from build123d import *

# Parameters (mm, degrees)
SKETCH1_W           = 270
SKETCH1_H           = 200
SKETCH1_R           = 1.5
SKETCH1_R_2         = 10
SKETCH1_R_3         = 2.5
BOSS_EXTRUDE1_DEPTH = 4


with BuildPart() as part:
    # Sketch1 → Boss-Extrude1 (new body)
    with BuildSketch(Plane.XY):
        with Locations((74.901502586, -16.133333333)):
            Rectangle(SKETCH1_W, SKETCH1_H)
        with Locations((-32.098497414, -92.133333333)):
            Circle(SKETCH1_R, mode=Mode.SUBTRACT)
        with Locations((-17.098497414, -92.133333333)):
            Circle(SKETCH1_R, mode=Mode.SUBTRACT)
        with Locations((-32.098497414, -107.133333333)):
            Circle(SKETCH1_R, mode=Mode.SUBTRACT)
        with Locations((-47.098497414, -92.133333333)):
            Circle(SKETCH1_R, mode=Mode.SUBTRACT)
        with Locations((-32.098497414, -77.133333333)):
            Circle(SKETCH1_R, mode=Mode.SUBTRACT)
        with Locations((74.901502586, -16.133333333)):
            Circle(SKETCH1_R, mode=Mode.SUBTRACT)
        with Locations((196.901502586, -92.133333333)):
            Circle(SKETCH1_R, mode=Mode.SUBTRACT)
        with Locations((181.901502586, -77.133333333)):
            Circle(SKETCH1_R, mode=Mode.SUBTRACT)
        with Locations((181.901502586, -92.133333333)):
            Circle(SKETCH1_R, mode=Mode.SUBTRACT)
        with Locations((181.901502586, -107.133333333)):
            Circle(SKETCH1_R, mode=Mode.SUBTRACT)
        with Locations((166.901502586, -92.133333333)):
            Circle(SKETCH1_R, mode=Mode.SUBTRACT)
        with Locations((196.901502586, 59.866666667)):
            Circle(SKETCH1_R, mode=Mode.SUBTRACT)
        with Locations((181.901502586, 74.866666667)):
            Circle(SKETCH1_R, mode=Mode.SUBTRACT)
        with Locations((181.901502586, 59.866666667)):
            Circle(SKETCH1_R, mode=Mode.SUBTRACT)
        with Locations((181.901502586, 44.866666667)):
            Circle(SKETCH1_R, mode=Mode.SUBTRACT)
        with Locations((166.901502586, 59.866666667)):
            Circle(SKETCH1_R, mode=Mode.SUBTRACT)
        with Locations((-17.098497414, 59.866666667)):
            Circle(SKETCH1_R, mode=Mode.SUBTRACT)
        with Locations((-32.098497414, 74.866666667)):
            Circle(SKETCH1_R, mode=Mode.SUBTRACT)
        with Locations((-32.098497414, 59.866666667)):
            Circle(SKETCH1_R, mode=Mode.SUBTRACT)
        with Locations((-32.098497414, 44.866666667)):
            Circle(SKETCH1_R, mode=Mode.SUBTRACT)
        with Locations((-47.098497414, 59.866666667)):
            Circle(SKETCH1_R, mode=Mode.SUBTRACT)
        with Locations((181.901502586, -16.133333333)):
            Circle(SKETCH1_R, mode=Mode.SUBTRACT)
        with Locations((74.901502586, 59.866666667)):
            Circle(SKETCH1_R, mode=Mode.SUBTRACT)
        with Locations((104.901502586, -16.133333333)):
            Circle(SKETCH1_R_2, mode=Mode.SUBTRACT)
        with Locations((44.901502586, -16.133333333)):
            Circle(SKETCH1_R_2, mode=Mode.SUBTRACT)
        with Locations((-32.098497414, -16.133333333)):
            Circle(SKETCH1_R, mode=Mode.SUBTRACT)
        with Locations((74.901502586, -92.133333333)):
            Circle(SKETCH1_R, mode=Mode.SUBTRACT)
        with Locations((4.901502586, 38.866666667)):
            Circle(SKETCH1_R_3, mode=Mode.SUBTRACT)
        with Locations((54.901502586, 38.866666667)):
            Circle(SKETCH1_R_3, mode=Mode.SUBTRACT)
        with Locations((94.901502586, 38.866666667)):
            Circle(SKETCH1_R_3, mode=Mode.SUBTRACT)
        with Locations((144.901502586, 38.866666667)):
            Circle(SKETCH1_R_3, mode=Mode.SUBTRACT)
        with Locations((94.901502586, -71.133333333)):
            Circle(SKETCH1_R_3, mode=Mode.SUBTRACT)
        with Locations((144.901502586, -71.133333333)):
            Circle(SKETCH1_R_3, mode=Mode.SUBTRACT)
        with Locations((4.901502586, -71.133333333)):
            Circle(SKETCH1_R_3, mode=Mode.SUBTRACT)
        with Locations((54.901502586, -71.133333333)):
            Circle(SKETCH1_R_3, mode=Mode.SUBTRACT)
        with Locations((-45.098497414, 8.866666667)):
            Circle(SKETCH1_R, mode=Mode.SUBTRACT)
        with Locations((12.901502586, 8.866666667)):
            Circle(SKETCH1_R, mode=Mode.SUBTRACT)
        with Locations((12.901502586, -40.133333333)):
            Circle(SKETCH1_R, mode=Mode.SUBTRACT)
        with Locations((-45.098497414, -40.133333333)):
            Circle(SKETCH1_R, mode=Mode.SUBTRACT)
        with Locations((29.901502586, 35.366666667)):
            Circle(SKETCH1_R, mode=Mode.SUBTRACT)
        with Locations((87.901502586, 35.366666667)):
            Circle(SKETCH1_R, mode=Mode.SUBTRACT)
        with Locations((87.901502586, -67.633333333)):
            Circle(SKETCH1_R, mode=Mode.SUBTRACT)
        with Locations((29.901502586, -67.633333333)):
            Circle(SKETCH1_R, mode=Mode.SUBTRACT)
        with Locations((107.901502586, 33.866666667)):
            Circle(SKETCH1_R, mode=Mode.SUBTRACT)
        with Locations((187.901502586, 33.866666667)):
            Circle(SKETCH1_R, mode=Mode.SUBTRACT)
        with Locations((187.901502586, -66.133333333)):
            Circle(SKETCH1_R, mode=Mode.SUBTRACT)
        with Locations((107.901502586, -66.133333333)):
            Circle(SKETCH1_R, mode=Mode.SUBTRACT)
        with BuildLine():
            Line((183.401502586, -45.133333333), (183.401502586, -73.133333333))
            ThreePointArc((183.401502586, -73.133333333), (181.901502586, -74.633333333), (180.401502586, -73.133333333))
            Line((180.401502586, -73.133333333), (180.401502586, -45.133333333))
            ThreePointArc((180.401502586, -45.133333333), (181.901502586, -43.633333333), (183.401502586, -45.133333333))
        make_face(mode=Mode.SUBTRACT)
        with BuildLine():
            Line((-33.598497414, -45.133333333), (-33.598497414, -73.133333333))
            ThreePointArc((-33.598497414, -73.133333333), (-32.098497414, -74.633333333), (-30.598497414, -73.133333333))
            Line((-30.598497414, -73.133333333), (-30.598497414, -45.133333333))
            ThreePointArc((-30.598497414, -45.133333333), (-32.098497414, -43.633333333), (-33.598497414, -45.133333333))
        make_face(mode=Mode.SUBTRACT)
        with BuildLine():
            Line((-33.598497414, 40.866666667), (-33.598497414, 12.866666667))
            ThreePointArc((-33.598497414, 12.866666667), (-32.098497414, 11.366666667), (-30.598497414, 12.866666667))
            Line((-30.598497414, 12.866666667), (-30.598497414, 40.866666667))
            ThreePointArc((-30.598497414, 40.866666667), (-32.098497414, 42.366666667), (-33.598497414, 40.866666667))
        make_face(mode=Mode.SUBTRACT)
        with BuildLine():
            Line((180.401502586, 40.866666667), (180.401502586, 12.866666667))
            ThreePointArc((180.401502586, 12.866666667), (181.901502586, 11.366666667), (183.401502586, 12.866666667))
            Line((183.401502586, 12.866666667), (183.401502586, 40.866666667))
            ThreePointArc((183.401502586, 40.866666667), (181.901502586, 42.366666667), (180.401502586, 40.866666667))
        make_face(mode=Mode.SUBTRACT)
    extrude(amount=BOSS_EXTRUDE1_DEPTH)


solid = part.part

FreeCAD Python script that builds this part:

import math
import FreeCAD as App
import Part
import Sketcher
Q = App.Units.Quantity

doc = App.newDocument("Part")
params = doc.addObject("Spreadsheet::Sheet", "Params")
for row, (alias, value) in enumerate([
    ("sketch1_diameter", "3 mm"),
    ("sketch1_diameter2", "5 mm"),
    ("sketch1_diameter3", "20 mm"),
    ("sketch1_width", "270 mm"),
    ("sketch1_height", "200 mm"),
    ("pad1_length", "4 mm"),
], start=1):
    params.set(f"A{row}", alias)
    params.set(f"B{row}", "=" + value)
    params.setAlias(f"B{row}", alias)

body = doc.addObject("PartDesign::Body", "Body")

sketch1 = body.newObject("Sketcher::SketchObject", "Sketch")
sketch1.AttachmentSupport = (doc.getObject("XY_Plane"), [""])
sketch1.MapMode = "FlatFace"
sketch1.addGeometry([
    Part.LineSegment(App.Vector(-60.1, 83.9, 0), App.Vector(-60.1, -116.1, 0)),
    Part.LineSegment(App.Vector(-60.1, -116.1, 0), App.Vector(209.9, -116.1, 0)),
    Part.LineSegment(App.Vector(209.9, -116.1, 0), App.Vector(209.9, 83.9, 0)),
    Part.LineSegment(App.Vector(209.9, 83.9, 0), App.Vector(-60.1, 83.9, 0)),
    Part.Circle(App.Vector(-32.1, -107.1, 0), App.Vector(0, 0, 1), 1.5),
    Part.Circle(App.Vector(-47.1, -92.1, 0), App.Vector(0, 0, 1), 1.5),
    Part.Circle(App.Vector(-32.1, -92.1, 0), App.Vector(0, 0, 1), 1.5),
    Part.Circle(App.Vector(-17.1, -92.1, 0), App.Vector(0, 0, 1), 1.5),
    Part.Circle(App.Vector(-32.1, -77.1, 0), App.Vector(0, 0, 1), 1.5),
    Part.Circle(App.Vector(4.9, -71.1, 0), App.Vector(0, 0, 1), 2.5),
    Part.Circle(App.Vector(29.9, -67.6, 0), App.Vector(0, 0, 1), 1.5),
    Part.Circle(App.Vector(54.9, -71.1, 0), App.Vector(0, 0, 1), 2.5),
    Part.LineSegment(App.Vector(-33.6, -73.1, 0), App.Vector(-33.6, -45.1, 0)),
    Part.ArcOfCircle(Part.Circle(App.Vector(-32.1, -45.1, 0), App.Vector(0, 0, 1), 1.5), math.radians(0), math.radians(180)),
    Part.LineSegment(App.Vector(-30.6, -45.1, 0), App.Vector(-30.6, -73.1, 0)),
    Part.ArcOfCircle(Part.Circle(App.Vector(-32.1, -73.1, 0), App.Vector(0, 0, 1), 1.5), math.radians(180), math.radians(360)),
    Part.Circle(App.Vector(-45.1, -40.1, 0), App.Vector(0, 0, 1), 1.5),
    Part.Circle(App.Vector(12.9, -40.1, 0), App.Vector(0, 0, 1), 1.5),
    Part.Circle(App.Vector(74.9, -92.1, 0), App.Vector(0, 0, 1), 1.5),
    Part.Circle(App.Vector(87.9, -67.6, 0), App.Vector(0, 0, 1), 1.5),
    Part.Circle(App.Vector(94.9, -71.1, 0), App.Vector(0, 0, 1), 2.5),
    Part.Circle(App.Vector(107.9, -66.1, 0), App.Vector(0, 0, 1), 1.5),
    Part.Circle(App.Vector(166.9, -92.1, 0), App.Vector(0, 0, 1), 1.5),
    Part.Circle(App.Vector(181.9, -107.1, 0), App.Vector(0, 0, 1), 1.5),
    Part.Circle(App.Vector(181.9, -92.1, 0), App.Vector(0, 0, 1), 1.5),
    Part.Circle(App.Vector(196.9, -92.1, 0), App.Vector(0, 0, 1), 1.5),
    Part.Circle(App.Vector(144.9, -71.1, 0), App.Vector(0, 0, 1), 2.5),
    Part.Circle(App.Vector(181.9, -77.1, 0), App.Vector(0, 0, 1), 1.5),
    Part.Circle(App.Vector(187.9, -66.1, 0), App.Vector(0, 0, 1), 1.5),
    Part.ArcOfCircle(Part.Circle(App.Vector(181.9, -45.1, 0), App.Vector(0, 0, 1), 1.5), math.radians(0), math.radians(180)),
    Part.LineSegment(App.Vector(183.4, -45.1, 0), App.Vector(183.4, -73.1, 0)),
    Part.ArcOfCircle(Part.Circle(App.Vector(181.9, -73.1, 0), App.Vector(0, 0, 1), 1.5), math.radians(180), math.radians(360)),
    Part.LineSegment(App.Vector(180.4, -73.1, 0), App.Vector(180.4, -45.1, 0)),
    Part.Circle(App.Vector(-32.1, -16.1, 0), App.Vector(0, 0, 1), 1.5),
    Part.Circle(App.Vector(-45.1, 8.9, 0), App.Vector(0, 0, 1), 1.5),
    Part.LineSegment(App.Vector(-33.6, 12.9, 0), App.Vector(-33.6, 40.9, 0)),
    Part.ArcOfCircle(Part.Circle(App.Vector(-32.1, 40.9, 0), App.Vector(0, 0, 1), 1.5), math.radians(0), math.radians(180)),
    Part.LineSegment(App.Vector(-30.6, 40.9, 0), App.Vector(-30.6, 12.9, 0)),
    Part.ArcOfCircle(Part.Circle(App.Vector(-32.1, 12.9, 0), App.Vector(0, 0, 1), 1.5), math.radians(180), math.radians(360)),
    Part.Circle(App.Vector(12.9, 8.9, 0), App.Vector(0, 0, 1), 1.5),
    Part.Circle(App.Vector(44.9, -16.1, 0), App.Vector(0, 0, 1), 10),
    Part.Circle(App.Vector(-32.1, 44.9, 0), App.Vector(0, 0, 1), 1.5),
    Part.Circle(App.Vector(4.9, 38.9, 0), App.Vector(0, 0, 1), 2.5),
    Part.Circle(App.Vector(-47.1, 59.9, 0), App.Vector(0, 0, 1), 1.5),
    Part.Circle(App.Vector(-32.1, 59.9, 0), App.Vector(0, 0, 1), 1.5),
    Part.Circle(App.Vector(-32.1, 74.9, 0), App.Vector(0, 0, 1), 1.5),
    Part.Circle(App.Vector(-17.1, 59.9, 0), App.Vector(0, 0, 1), 1.5),
    Part.Circle(App.Vector(29.9, 35.4, 0), App.Vector(0, 0, 1), 1.5),
    Part.Circle(App.Vector(54.9, 38.9, 0), App.Vector(0, 0, 1), 2.5),
    Part.Circle(App.Vector(74.9, -16.1, 0), App.Vector(0, 0, 1), 1.5),
    Part.Circle(App.Vector(104.9, -16.1, 0), App.Vector(0, 0, 1), 10),
    Part.Circle(App.Vector(181.9, -16.1, 0), App.Vector(0, 0, 1), 1.5),
    Part.LineSegment(App.Vector(180.4, 12.9, 0), App.Vector(180.4, 40.9, 0)),
    Part.ArcOfCircle(Part.Circle(App.Vector(181.9, 40.9, 0), App.Vector(0, 0, 1), 1.5), math.radians(0), math.radians(180)),
    Part.LineSegment(App.Vector(183.4, 40.9, 0), App.Vector(183.4, 12.9, 0)),
    Part.ArcOfCircle(Part.Circle(App.Vector(181.9, 12.9, 0), App.Vector(0, 0, 1), 1.5), math.radians(180), math.radians(360)),
    Part.Circle(App.Vector(87.9, 35.4, 0), App.Vector(0, 0, 1), 1.5),
    Part.Circle(App.Vector(94.9, 38.9, 0), App.Vector(0, 0, 1), 2.5),
    Part.Circle(App.Vector(107.9, 33.9, 0), App.Vector(0, 0, 1), 1.5),
    Part.Circle(App.Vector(74.9, 59.9, 0), App.Vector(0, 0, 1), 1.5),
    Part.Circle(App.Vector(144.9, 38.9, 0), App.Vector(0, 0, 1), 2.5),
    Part.Circle(App.Vector(187.9, 33.9, 0), App.Vector(0, 0, 1), 1.5),
    Part.Circle(App.Vector(181.9, 44.9, 0), App.Vector(0, 0, 1), 1.5),
    Part.Circle(App.Vector(166.9, 59.9, 0), App.Vector(0, 0, 1), 1.5),
    Part.Circle(App.Vector(181.9, 59.9, 0), App.Vector(0, 0, 1), 1.5),
    Part.Circle(App.Vector(196.9, 59.9, 0), App.Vector(0, 0, 1), 1.5),
    Part.Circle(App.Vector(181.9, 74.9, 0), App.Vector(0, 0, 1), 1.5),
], False)
sketch1.addConstraint([
    Sketcher.Constraint("Coincident", 0, 2, 1, 1),
    Sketcher.Constraint("Coincident", 1, 2, 2, 1),
    Sketcher.Constraint("Coincident", 2, 2, 3, 1),
    Sketcher.Constraint("Coincident", 3, 2, 0, 1),
    Sketcher.Constraint("Tangent", 12, 2, 13, 2),
    Sketcher.Constraint("Tangent", 13, 1, 14, 1),
    Sketcher.Constraint("Tangent", 14, 2, 15, 2),
    Sketcher.Constraint("Tangent", 15, 1, 12, 1),
    Sketcher.Constraint("Tangent", 29, 1, 30, 1),
    Sketcher.Constraint("Tangent", 30, 2, 31, 2),
    Sketcher.Constraint("Tangent", 31, 1, 32, 1),
    Sketcher.Constraint("Tangent", 32, 2, 29, 2),
    Sketcher.Constraint("Tangent", 35, 2, 36, 2),
    Sketcher.Constraint("Tangent", 36, 1, 37, 1),
    Sketcher.Constraint("Tangent", 37, 2, 38, 2),
    Sketcher.Constraint("Tangent", 38, 1, 35, 1),
    Sketcher.Constraint("Tangent", 52, 2, 53, 2),
    Sketcher.Constraint("Tangent", 53, 1, 54, 1),
    Sketcher.Constraint("Tangent", 54, 2, 55, 2),
    Sketcher.Constraint("Tangent", 55, 1, 52, 1),
    Sketcher.Constraint("Vertical", 0),
    Sketcher.Constraint("Horizontal", 1),
    Sketcher.Constraint("Vertical", 2),
    Sketcher.Constraint("Horizontal", 3),
    Sketcher.Constraint("Vertical", 12),
    Sketcher.Constraint("Vertical", 14),
    Sketcher.Constraint("Vertical", 30),
    Sketcher.Constraint("Vertical", 32),
    Sketcher.Constraint("Vertical", 35),
    Sketcher.Constraint("Vertical", 37),
    Sketcher.Constraint("Vertical", 52),
    Sketcher.Constraint("Vertical", 54),
    Sketcher.Constraint("Equal", 4, 5),
    Sketcher.Constraint("Equal", 5, 6),
    Sketcher.Constraint("Equal", 6, 7),
    Sketcher.Constraint("Equal", 7, 8),
    Sketcher.Constraint("Equal", 8, 10),
    Sketcher.Constraint("Equal", 9, 11),
    Sketcher.Constraint("Equal", 10, 13),
    Sketcher.Constraint("Equal", 15, 16),
    Sketcher.Constraint("Equal", 16, 17),
    Sketcher.Constraint("Equal", 17, 18),
    Sketcher.Constraint("Equal", 18, 19),
    Sketcher.Constraint("Equal", 11, 20),
    Sketcher.Constraint("Equal", 19, 21),
    Sketcher.Constraint("Equal", 21, 22),
    Sketcher.Constraint("Equal", 22, 23),
    Sketcher.Constraint("Equal", 23, 24),
    Sketcher.Constraint("Equal", 24, 25),
    Sketcher.Constraint("Equal", 20, 26),
    Sketcher.Constraint("Equal", 25, 27),
    Sketcher.Constraint("Equal", 27, 28),
    Sketcher.Constraint("Equal", 28, 29),
    Sketcher.Constraint("Equal", 31, 33),
    Sketcher.Constraint("Equal", 33, 34),
    Sketcher.Constraint("Equal", 34, 36),
    Sketcher.Constraint("Equal", 38, 39),
    Sketcher.Constraint("Equal", 39, 41),
    Sketcher.Constraint("Equal", 26, 42),
    Sketcher.Constraint("Equal", 41, 43),
    Sketcher.Constraint("Equal", 43, 44),
    Sketcher.Constraint("Equal", 44, 45),
    Sketcher.Constraint("Equal", 45, 46),
    Sketcher.Constraint("Equal", 46, 47),
    Sketcher.Constraint("Equal", 42, 48),
    Sketcher.Constraint("Equal", 47, 49),
    Sketcher.Constraint("Equal", 40, 50),
    Sketcher.Constraint("Equal", 49, 51),
    Sketcher.Constraint("Equal", 51, 53),
    Sketcher.Constraint("Equal", 55, 56),
    Sketcher.Constraint("Equal", 48, 57),
    Sketcher.Constraint("Equal", 56, 58),
    Sketcher.Constraint("Equal", 58, 59),
    Sketcher.Constraint("Equal", 57, 60),
    Sketcher.Constraint("Equal", 59, 61),
    Sketcher.Constraint("Equal", 61, 62),
    Sketcher.Constraint("Equal", 62, 63),
    Sketcher.Constraint("Equal", 63, 64),
    Sketcher.Constraint("Equal", 64, 65),
    Sketcher.Constraint("Equal", 65, 66),
    Sketcher.Constraint("Horizontal", 5, 3, 6, 3),
    Sketcher.Constraint("Horizontal", 6, 3, 7, 3),
    Sketcher.Constraint("Horizontal", 9, 3, 11, 3),
    Sketcher.Constraint("Horizontal", 16, 3, 17, 3),
    Sketcher.Constraint("Horizontal", 7, 3, 18, 3),
    Sketcher.Constraint("Horizontal", 10, 3, 19, 3),
    Sketcher.Constraint("Horizontal", 11, 3, 20, 3),
    Sketcher.Constraint("Horizontal", 18, 3, 22, 3),
    Sketcher.Constraint("Horizontal", 4, 3, 23, 3),
    Sketcher.Constraint("Horizontal", 22, 3, 24, 3),
    Sketcher.Constraint("Horizontal", 24, 3, 25, 3),
    Sketcher.Constraint("Horizontal", 20, 3, 26, 3),
    Sketcher.Constraint("Horizontal", 8, 3, 27, 3),
    Sketcher.Constraint("Horizontal", 21, 3, 28, 3),
    Sketcher.Constraint("Horizontal", 13, 3, 29, 3),
    Sketcher.Constraint("Horizontal", 15, 3, 31, 3),
    Sketcher.Constraint("Horizontal", 34, 3, 39, 3),
    Sketcher.Constraint("Horizontal", 33, 3, 40, 3),
    Sketcher.Constraint("Horizontal", 43, 3, 44, 3),
    Sketcher.Constraint("Horizontal", 44, 3, 46, 3),
    Sketcher.Constraint("Horizontal", 42, 3, 48, 3),
    Sketcher.Constraint("Horizontal", 40, 3, 49, 3),
    Sketcher.Constraint("Horizontal", 49, 3, 50, 3),
    Sketcher.Constraint("Horizontal", 50, 3, 51, 3),
    Sketcher.Constraint("Horizontal", 36, 3, 53, 3),
    Sketcher.Constraint("Horizontal", 38, 3, 55, 3),
    Sketcher.Constraint("Horizontal", 47, 3, 56, 3),
    Sketcher.Constraint("Horizontal", 48, 3, 57, 3),
    Sketcher.Constraint("Horizontal", 46, 3, 59, 3),
    Sketcher.Constraint("Horizontal", 57, 3, 60, 3),
    Sketcher.Constraint("Horizontal", 58, 3, 61, 3),
    Sketcher.Constraint("Horizontal", 41, 3, 62, 3),
    Sketcher.Constraint("Horizontal", 59, 3, 63, 3),
    Sketcher.Constraint("Horizontal", 63, 3, 64, 3),
    Sketcher.Constraint("Horizontal", 64, 3, 65, 3),
    Sketcher.Constraint("Horizontal", 45, 3, 66, 3),
    Sketcher.Constraint("Vertical", 4, 3, 6, 3),
    Sketcher.Constraint("Vertical", 6, 3, 8, 3),
    Sketcher.Constraint("Vertical", 8, 3, 13, 3),
    Sketcher.Constraint("Vertical", 23, 3, 24, 3),
    Sketcher.Constraint("Vertical", 24, 3, 27, 3),
    Sketcher.Constraint("Vertical", 27, 3, 29, 3),
    Sketcher.Constraint("Vertical", 15, 3, 33, 3),
    Sketcher.Constraint("Vertical", 16, 3, 34, 3),
    Sketcher.Constraint("Vertical", 33, 3, 36, 3),
    Sketcher.Constraint("Vertical", 17, 3, 39, 3),
    Sketcher.Constraint("Vertical", 38, 3, 41, 3),
    Sketcher.Constraint("Vertical", 9, 3, 42, 3),
    Sketcher.Constraint("Vertical", 5, 3, 43, 3),
    Sketcher.Constraint("Vertical", 41, 3, 44, 3),
    Sketcher.Constraint("Vertical", 44, 3, 45, 3),
    Sketcher.Constraint("Vertical", 7, 3, 46, 3),
    Sketcher.Constraint("Vertical", 10, 3, 47, 3),
    Sketcher.Constraint("Vertical", 11, 3, 48, 3),
    Sketcher.Constraint("Vertical", 18, 3, 49, 3),
    Sketcher.Constraint("Vertical", 31, 3, 51, 3),
    Sketcher.Constraint("Vertical", 51, 3, 53, 3),
    Sketcher.Constraint("Vertical", 19, 3, 56, 3),
    Sketcher.Constraint("Vertical", 20, 3, 57, 3),
    Sketcher.Constraint("Vertical", 21, 3, 58, 3),
    Sketcher.Constraint("Vertical", 49, 3, 59, 3),
    Sketcher.Constraint("Vertical", 26, 3, 60, 3),
    Sketcher.Constraint("Vertical", 28, 3, 61, 3),
    Sketcher.Constraint("Vertical", 55, 3, 62, 3),
    Sketcher.Constraint("Vertical", 22, 3, 63, 3),
    Sketcher.Constraint("Vertical", 62, 3, 64, 3),
    Sketcher.Constraint("Vertical", 25, 3, 65, 3),
    Sketcher.Constraint("Vertical", 64, 3, 66, 3),
    Sketcher.Constraint("Equal", 32, 35),
    Sketcher.Constraint("Diameter", 4, Q("3 mm")),
    Sketcher.Constraint("Diameter", 9, Q("5 mm")),
    Sketcher.Constraint("Diameter", 40, Q("20 mm")),
    Sketcher.Constraint("DistanceX", 1, 1, 1, 2, Q("270 mm")),
    Sketcher.Constraint("DistanceY", 0, 2, 0, 1, Q("200 mm")),
    Sketcher.Constraint("DistanceY", 12, 1, 12, 2, Q("28 mm")),
    Sketcher.Constraint("DistanceX", 4, 3, -1, 1, Q("32.098497 mm")),
    Sketcher.Constraint("DistanceY", 4, 3, -1, 1, Q("107.133333 mm")),
    Sketcher.Constraint("DistanceX", 5, 3, -1, 1, Q("47.098497 mm")),
    Sketcher.Constraint("DistanceY", 5, 3, -1, 1, Q("92.133333 mm")),
    Sketcher.Constraint("DistanceX", 7, 3, -1, 1, Q("17.098497 mm")),
    Sketcher.Constraint("DistanceY", 8, 3, -1, 1, Q("77.133333 mm")),
    Sketcher.Constraint("DistanceX", -1, 1, 9, 3, Q("4.901503 mm")),
    Sketcher.Constraint("DistanceY", 9, 3, -1, 1, Q("71.133333 mm")),
    Sketcher.Constraint("DistanceX", -1, 1, 10, 3, Q("29.901503 mm")),
    Sketcher.Constraint("DistanceY", 10, 3, -1, 1, Q("67.633333 mm")),
    Sketcher.Constraint("DistanceX", -1, 1, 11, 3, Q("54.901503 mm")),
    Sketcher.Constraint("DistanceY", 13, 3, -1, 1, Q("45.133333 mm")),
    Sketcher.Constraint("DistanceX", 16, 3, -1, 1, Q("45.098497 mm")),
    Sketcher.Constraint("DistanceY", 16, 3, -1, 1, Q("40.133333 mm")),
    Sketcher.Constraint("DistanceX", -1, 1, 17, 3, Q("12.901503 mm")),
    Sketcher.Constraint("DistanceX", -1, 1, 18, 3, Q("74.901503 mm")),
    Sketcher.Constraint("DistanceX", -1, 1, 19, 3, Q("87.901503 mm")),
    Sketcher.Constraint("DistanceX", -1, 1, 20, 3, Q("94.901503 mm")),
    Sketcher.Constraint("DistanceX", -1, 1, 21, 3, Q("107.901503 mm")),
    Sketcher.Constraint("DistanceY", 21, 3, -1, 1, Q("66.133333 mm")),
    Sketcher.Constraint("DistanceX", -1, 1, 22, 3, Q("166.901503 mm")),
    Sketcher.Constraint("DistanceX", -1, 1, 23, 3, Q("181.901503 mm")),
    Sketcher.Constraint("DistanceX", -1, 1, 25, 3, Q("196.901503 mm")),
    Sketcher.Constraint("DistanceX", -1, 1, 26, 3, Q("144.901503 mm")),
    Sketcher.Constraint("DistanceX", -1, 1, 28, 3, Q("187.901503 mm")),
    Sketcher.Constraint("DistanceY", 33, 3, -1, 1, Q("16.133333 mm")),
    Sketcher.Constraint("DistanceY", -1, 1, 34, 3, Q("8.866667 mm")),
    Sketcher.Constraint("DistanceY", -1, 1, 36, 3, Q("40.866667 mm")),
    Sketcher.Constraint("DistanceX", -1, 1, 40, 3, Q("44.901503 mm")),
    Sketcher.Constraint("DistanceY", -1, 1, 41, 3, Q("44.866667 mm")),
    Sketcher.Constraint("DistanceY", -1, 1, 42, 3, Q("38.866667 mm")),
    Sketcher.Constraint("DistanceY", -1, 1, 43, 3, Q("59.866667 mm")),
    Sketcher.Constraint("DistanceY", -1, 1, 45, 3, Q("74.866667 mm")),
    Sketcher.Constraint("DistanceY", -1, 1, 47, 3, Q("35.366667 mm")),
    Sketcher.Constraint("DistanceX", -1, 1, 50, 3, Q("104.901503 mm")),
    Sketcher.Constraint("DistanceY", -1, 1, 58, 3, Q("33.866667 mm")),
    Sketcher.Constraint("DistanceX", 0, 2, -1, 1, Q("60.098497 mm")),
    Sketcher.Constraint("DistanceY", 0, 2, -1, 1, Q("116.133333 mm")),
])
sketch1.setExpression("Constraints[149]", "Params.sketch1_diameter")
sketch1.setExpression("Constraints[150]", "Params.sketch1_diameter2")
sketch1.setExpression("Constraints[151]", "Params.sketch1_diameter3")
sketch1.setExpression("Constraints[152]", "Params.sketch1_width")
sketch1.setExpression("Constraints[153]", "Params.sketch1_height")
pad1 = body.newObject("PartDesign::Pad", "Pad")
pad1.Profile = sketch1
pad1.setExpression("Length", "Params.pad1_length")

doc.recompute()
